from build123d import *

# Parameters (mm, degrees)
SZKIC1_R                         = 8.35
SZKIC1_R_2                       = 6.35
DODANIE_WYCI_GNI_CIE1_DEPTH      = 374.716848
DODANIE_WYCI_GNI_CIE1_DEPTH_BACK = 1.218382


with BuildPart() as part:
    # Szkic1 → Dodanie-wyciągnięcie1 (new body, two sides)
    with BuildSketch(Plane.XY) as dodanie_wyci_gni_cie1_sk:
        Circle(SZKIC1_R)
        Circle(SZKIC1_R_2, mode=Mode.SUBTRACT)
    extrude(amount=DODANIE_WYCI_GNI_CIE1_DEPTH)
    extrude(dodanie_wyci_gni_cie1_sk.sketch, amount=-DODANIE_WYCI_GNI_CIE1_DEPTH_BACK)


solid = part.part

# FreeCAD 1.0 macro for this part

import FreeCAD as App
import Part
import Sketcher

V = App.Vector
Q = App.Units.Quantity

doc = App.newDocument("Part")
body = doc.addObject("PartDesign::Body", "Body")

# Sketch on XY plane
sketch1 = body.newObject("Sketcher::SketchObject", "Sketch")
sketch1.AttachmentSupport = (doc.getObject("XY_Plane"), [""])
sketch1.MapMode = "FlatFace"
sketch1.addGeometry([
    Part.Circle(V(0, 0, 0), V(0, 0, 1), 8.35),
    Part.Circle(V(0, 0, 0), V(0, 0, 1), 6.35),
], False)
sketch1.addConstraint([
    Sketcher.Constraint("Coincident", 0, 3, -1, 1),
    Sketcher.Constraint("Coincident", 1, 3, -1, 1),
    Sketcher.Constraint("Diameter", 0, Q("16.7 mm")),
    Sketcher.Constraint("Diameter", 1, Q("12.7 mm")),
])
pad1 = body.newObject("PartDesign::Pad", "Pad")
pad1.Profile = sketch1
pad1.Type = "TwoLengths"
pad1.Length = 374.716848
pad1.Length2 = 1.218382

doc.recompute()
